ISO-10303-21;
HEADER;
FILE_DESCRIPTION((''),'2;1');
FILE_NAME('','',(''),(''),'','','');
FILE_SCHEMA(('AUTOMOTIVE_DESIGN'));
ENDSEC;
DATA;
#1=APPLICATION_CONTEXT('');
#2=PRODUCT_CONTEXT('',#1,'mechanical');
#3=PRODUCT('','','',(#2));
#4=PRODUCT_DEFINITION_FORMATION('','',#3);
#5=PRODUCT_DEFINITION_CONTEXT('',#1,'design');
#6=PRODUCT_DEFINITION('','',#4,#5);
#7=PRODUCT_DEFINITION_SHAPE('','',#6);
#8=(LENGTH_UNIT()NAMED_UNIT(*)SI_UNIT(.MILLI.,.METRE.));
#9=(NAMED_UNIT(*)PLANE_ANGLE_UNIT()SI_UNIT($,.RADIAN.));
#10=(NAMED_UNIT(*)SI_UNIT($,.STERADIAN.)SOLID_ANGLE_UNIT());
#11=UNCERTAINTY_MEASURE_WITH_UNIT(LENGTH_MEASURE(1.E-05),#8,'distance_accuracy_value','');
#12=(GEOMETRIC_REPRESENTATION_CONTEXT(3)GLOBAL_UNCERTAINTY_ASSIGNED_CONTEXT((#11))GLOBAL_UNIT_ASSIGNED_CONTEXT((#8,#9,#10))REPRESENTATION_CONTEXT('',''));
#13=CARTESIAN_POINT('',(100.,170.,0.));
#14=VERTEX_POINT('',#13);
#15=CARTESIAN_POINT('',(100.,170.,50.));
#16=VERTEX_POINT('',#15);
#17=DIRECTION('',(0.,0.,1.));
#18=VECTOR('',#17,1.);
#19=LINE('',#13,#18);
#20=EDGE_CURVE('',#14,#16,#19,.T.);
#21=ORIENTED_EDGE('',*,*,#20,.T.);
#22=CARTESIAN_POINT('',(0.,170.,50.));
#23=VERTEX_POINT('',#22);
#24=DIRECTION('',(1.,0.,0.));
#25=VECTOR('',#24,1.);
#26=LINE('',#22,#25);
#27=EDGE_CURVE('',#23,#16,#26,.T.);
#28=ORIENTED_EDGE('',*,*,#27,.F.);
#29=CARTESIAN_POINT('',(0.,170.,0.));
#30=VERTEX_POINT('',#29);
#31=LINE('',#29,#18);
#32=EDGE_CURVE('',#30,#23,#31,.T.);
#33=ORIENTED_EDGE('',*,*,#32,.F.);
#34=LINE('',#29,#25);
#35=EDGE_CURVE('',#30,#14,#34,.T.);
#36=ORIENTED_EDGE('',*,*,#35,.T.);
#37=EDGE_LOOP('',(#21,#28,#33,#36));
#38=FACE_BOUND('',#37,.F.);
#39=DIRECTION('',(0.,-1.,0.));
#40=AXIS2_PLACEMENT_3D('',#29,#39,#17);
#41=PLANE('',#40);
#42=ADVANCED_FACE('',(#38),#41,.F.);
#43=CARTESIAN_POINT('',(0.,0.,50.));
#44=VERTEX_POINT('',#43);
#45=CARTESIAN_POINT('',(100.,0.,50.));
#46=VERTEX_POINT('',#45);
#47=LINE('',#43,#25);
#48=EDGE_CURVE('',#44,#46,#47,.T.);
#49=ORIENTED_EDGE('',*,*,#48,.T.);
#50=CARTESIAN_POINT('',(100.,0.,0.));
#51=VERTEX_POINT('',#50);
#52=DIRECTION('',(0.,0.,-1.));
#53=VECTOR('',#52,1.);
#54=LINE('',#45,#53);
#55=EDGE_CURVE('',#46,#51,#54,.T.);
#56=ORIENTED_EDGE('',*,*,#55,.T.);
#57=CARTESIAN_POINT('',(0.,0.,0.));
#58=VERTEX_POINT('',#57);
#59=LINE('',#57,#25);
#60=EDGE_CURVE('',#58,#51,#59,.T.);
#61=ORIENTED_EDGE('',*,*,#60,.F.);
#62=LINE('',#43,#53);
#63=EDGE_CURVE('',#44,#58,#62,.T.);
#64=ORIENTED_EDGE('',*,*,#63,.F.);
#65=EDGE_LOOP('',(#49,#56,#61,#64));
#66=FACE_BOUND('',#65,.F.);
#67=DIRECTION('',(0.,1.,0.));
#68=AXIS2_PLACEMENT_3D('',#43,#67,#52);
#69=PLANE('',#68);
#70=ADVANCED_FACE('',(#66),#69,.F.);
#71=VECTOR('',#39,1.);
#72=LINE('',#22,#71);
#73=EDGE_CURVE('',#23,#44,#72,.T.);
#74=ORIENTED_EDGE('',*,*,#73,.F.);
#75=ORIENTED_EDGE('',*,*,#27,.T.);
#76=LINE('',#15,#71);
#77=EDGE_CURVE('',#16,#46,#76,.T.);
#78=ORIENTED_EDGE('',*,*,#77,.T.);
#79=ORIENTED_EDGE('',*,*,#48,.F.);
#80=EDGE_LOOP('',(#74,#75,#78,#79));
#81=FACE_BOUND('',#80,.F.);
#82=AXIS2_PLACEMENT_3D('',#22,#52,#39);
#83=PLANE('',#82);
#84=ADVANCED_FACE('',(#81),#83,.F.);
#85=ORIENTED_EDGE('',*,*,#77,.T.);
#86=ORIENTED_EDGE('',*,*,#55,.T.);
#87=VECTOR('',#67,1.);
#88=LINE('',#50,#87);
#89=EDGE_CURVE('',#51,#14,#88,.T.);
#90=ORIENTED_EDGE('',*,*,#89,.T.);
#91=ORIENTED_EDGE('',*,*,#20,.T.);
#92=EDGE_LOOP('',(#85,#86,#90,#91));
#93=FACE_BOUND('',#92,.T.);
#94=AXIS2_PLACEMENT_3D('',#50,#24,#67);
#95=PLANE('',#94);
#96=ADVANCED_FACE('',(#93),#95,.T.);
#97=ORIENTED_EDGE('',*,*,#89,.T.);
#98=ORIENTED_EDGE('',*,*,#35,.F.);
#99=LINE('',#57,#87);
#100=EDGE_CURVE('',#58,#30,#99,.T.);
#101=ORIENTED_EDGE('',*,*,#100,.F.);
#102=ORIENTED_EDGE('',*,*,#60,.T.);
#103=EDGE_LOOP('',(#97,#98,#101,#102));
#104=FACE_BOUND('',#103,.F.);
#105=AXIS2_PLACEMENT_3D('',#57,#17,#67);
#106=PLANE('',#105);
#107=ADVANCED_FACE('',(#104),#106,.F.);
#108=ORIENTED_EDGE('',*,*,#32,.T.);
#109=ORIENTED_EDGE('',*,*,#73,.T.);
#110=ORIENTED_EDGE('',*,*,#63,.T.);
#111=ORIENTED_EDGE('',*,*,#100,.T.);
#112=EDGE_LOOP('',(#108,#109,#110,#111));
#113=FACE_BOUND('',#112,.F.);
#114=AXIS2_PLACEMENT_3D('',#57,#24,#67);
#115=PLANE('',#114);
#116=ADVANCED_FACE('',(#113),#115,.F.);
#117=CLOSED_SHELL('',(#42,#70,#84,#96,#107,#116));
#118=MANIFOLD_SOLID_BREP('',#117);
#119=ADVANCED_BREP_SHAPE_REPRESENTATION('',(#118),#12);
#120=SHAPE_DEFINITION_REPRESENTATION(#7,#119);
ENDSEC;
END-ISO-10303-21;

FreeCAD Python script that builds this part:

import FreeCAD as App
import Part
import Sketcher
from FreeCAD import Vector
Q = App.Units.Quantity


def add_polygon(sketch, points):
    """Adds a closed chain of lines whose ends are joined by coincident constraints."""
    first, n = sketch.GeometryCount, len(points)
    for a, b in zip(points, points[1:] + points[:1]):
        sketch.addGeometry(Part.LineSegment(App.Vector(*a, 0), App.Vector(*b, 0)), False)
    for i in range(n):
        sketch.addConstraint(Sketcher.Constraint("Coincident", first + i, 2, first + (i + 1) % n, 1))

doc = App.newDocument("Part")
params = doc.addObject("Spreadsheet::Sheet", "Params")
for row, (alias, value) in enumerate([
    ("sketch1_width", "170 mm"),
    ("sketch1_height", "50 mm"),
    ("pad1_length", "100 mm"),
], start=1):
    params.set(f"A{row}", alias)
    params.set(f"B{row}", "=" + value)
    params.setAlias(f"B{row}", alias)

body = doc.addObject("PartDesign::Body", "Body")

# Sketch on YZ plane
sketch1 = body.newObject("Sketcher::SketchObject", "Sketch")
sketch1.AttachmentSupport = (doc.getObject("YZ_Plane"), [""])
sketch1.MapMode = "FlatFace"
add_polygon(sketch1, [(0, 50), (0, 0), (170, 0), (170, 50)])  # lines 0-3
sketch1.addConstraint([
    Sketcher.Constraint("Vertical", 0),
    Sketcher.Constraint("Horizontal", 1),
    Sketcher.Constraint("Vertical", 2),
    Sketcher.Constraint("Horizontal", 3),
    Sketcher.Constraint("Coincident", 0, 2, -1, 1),
    Sketcher.Constraint("DistanceX", 1, 1, 1, 2, Q("170 mm")),
    Sketcher.Constraint("DistanceY", 0, 2, 0, 1, Q("50 mm")),
])
sketch1.setExpression("Constraints[9]", "Params.sketch1_width")
sketch1.setExpression("Constraints[10]", "Params.sketch1_height")
pad1 = body.newObject("PartDesign::Pad", "Pad")
pad1.Profile = sketch1
pad1.setExpression("Length", "Params.pad1_length")

doc.recompute()
